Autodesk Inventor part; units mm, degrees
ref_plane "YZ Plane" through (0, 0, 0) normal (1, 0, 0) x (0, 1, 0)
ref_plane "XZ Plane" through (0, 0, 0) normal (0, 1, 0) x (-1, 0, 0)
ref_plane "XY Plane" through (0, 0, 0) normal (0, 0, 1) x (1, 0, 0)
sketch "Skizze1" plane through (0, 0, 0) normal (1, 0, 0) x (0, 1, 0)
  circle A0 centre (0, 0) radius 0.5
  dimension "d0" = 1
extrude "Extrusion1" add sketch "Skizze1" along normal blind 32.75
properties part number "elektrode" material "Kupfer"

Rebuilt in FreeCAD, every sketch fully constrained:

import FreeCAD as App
import Part
import Sketcher
from FreeCAD import Vector
Q = App.Units.Quantity

doc = App.newDocument("Part")
params = doc.addObject("Spreadsheet::Sheet", "Params")
for row, (alias, value) in enumerate([
    ("sketch1_diameter", "1 mm"),
    ("pad1_length", "32.75 mm"),
], start=1):
    params.set(f"A{row}", alias)
    params.set(f"B{row}", "=" + value)
    params.setAlias(f"B{row}", alias)

body = doc.addObject("PartDesign::Body", "Body")

# Sketch on YZ plane
sketch1 = doc.addObject("Sketcher::SketchObject", "Sketch")
body.addObject(sketch1)
sketch1.AttachmentSupport = (doc.YZ_Plane, [""])
sketch1.MapMode = "FlatFace"
sketch1.addGeometry(Part.Circle(Vector(0, 0, 0), Vector(0, 0, 1), 0.5), False)
sketch1.addConstraint([
    Sketcher.Constraint("Coincident", 0, 3, -1, 1),
    Sketcher.Constraint("Diameter", 0, Q("1 mm")),
])
sketch1.setExpression("Constraints[1]", "Params.sketch1_diameter")
pad1 = doc.addObject("PartDesign::Pad", "Pad")
body.addObject(pad1)
pad1.Profile = sketch1
pad1.setExpression("Length", "Params.pad1_length")

doc.recompute()
